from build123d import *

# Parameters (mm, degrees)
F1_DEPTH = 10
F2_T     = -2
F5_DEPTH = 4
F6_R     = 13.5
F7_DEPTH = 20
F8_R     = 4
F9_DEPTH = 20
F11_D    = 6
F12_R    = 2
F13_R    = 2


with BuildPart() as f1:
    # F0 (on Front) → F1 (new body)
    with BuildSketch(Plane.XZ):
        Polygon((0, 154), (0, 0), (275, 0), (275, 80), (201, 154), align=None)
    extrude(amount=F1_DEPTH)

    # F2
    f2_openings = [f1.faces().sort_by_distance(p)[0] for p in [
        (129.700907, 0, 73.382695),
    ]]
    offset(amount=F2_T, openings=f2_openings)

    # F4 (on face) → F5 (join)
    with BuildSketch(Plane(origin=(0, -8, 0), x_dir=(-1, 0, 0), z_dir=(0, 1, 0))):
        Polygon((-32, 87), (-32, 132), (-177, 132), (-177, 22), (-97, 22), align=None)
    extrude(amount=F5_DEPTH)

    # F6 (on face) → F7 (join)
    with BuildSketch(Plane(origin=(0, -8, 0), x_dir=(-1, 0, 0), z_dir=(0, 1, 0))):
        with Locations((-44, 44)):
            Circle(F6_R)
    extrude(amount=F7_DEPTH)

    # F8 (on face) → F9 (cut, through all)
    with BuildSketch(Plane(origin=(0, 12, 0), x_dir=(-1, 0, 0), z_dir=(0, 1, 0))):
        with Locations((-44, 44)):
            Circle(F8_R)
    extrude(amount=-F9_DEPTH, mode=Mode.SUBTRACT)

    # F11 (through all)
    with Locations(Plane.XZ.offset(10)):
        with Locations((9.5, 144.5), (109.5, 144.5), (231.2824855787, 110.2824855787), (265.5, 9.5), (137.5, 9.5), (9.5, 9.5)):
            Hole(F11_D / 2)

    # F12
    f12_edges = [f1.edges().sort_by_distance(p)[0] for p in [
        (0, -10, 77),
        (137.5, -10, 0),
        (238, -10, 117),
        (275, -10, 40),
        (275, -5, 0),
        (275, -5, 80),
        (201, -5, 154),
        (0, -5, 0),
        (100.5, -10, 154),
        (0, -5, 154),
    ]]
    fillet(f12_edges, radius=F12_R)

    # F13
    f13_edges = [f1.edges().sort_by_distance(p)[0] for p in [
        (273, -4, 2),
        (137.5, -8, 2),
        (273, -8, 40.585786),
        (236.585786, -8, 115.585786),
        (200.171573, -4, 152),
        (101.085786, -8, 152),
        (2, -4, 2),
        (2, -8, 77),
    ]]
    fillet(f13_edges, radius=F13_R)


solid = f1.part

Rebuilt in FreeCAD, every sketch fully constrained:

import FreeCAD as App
import Part
import Sketcher

V = App.Vector
Q = App.Units.Quantity


def edges_at(feature, points):
    """Names of the edges that pass closest to the given points."""
    edges = feature.Shape.Edges
    near = lambda p: min(range(len(edges)), key=lambda i: edges[i].distToShape(Part.Vertex(*p))[0])
    return sorted({f"Edge{near(p) + 1}" for p in points})


def faces_at(feature, points):
    """Names of the faces that lie closest to the given points."""
    faces = feature.Shape.Faces
    near = lambda p: min(range(len(faces)), key=lambda i: faces[i].distToShape(Part.Vertex(*p))[0])
    return sorted({f"Face{near(p) + 1}" for p in points})


def add_polygon(sketch, points):
    """Adds a closed chain of lines whose ends are joined by coincident constraints."""
    first, n = sketch.GeometryCount, len(points)
    for a, b in zip(points, points[1:] + points[:1]):
        sketch.addGeometry(Part.LineSegment(App.Vector(*a, 0), App.Vector(*b, 0)), False)
    for i in range(n):
        sketch.addConstraint(Sketcher.Constraint("Coincident", first + i, 2, first + (i + 1) % n, 1))

doc = App.newDocument("Part")
body = doc.addObject("PartDesign::Body", "Body")

# Sketch on XZ plane
sketch1 = doc.addObject("Sketcher::SketchObject", "Sketch")
body.addObject(sketch1)
sketch1.AttachmentSupport = (doc.XZ_Plane, [""])
sketch1.MapMode = "FlatFace"
add_polygon(sketch1, [(0, 154), (0, 0), (275, 0), (275, 80), (201, 154)])  # lines 0-4
sketch1.addConstraint(Sketcher.Constraint("Vertical", 0))
sketch1.addConstraint(Sketcher.Constraint("Horizontal", 1))
sketch1.addConstraint(Sketcher.Constraint("Vertical", 2))
sketch1.addConstraint(Sketcher.Constraint("Horizontal", 4))
sketch1.addConstraint(Sketcher.Constraint("Coincident", 0, 2, -1, 1))
sketch1.addConstraint(Sketcher.Constraint("DistanceX", 1, 1, 1, 2, Q("275 mm")))
sketch1.addConstraint(Sketcher.Constraint("DistanceX", 4, 2, 4, 1, Q("201 mm")))
sketch1.addConstraint(Sketcher.Constraint("DistanceY", 0, 2, 0, 1, Q("154 mm")))
sketch1.addConstraint(Sketcher.Constraint("DistanceY", 2, 1, 2, 2, Q("80 mm")))
pad1 = doc.addObject("PartDesign::Pad", "Pad")
body.addObject(pad1)
pad1.Profile = sketch1
pad1.Length = 10
doc.recompute()

thickness = doc.addObject("PartDesign::Thickness", "Thickness")
body.addObject(thickness)
thickness.Base = (pad1, faces_at(pad1, [(137.5, 0, 77)]))
thickness.Value = 2
thickness.Reversed = True
thickness.Join = "Arc"

# Sketch on XZ plane
sketch2 = doc.addObject("Sketcher::SketchObject", "Sketch001")
body.addObject(sketch2)
sketch2.AttachmentSupport = (doc.XZ_Plane, [""])
sketch2.MapMode = "FlatFace"
sketch2.AttachmentOffset = App.Placement(V(0, 0, 8), App.Rotation())
add_polygon(sketch2, [(32, 87), (32, 132), (177, 132), (177, 22), (97, 22)])  # lines 0-4
sketch2.addConstraint(Sketcher.Constraint("Vertical", 0))
sketch2.addConstraint(Sketcher.Constraint("Horizontal", 1))
sketch2.addConstraint(Sketcher.Constraint("Vertical", 2))
sketch2.addConstraint(Sketcher.Constraint("Horizontal", 3))
sketch2.addConstraint(Sketcher.Constraint("DistanceX", 1, 1, 1, 2, Q("145 mm")))
sketch2.addConstraint(Sketcher.Constraint("DistanceX", 3, 2, 3, 1, Q("80 mm")))
sketch2.addConstraint(Sketcher.Constraint("DistanceY", 0, 1, 0, 2, Q("45 mm")))
sketch2.addConstraint(Sketcher.Constraint("DistanceY", 2, 2, 2, 1, Q("110 mm")))
sketch2.addConstraint(Sketcher.Constraint("DistanceX", -1, 1, 0, 2, Q("32 mm")))
sketch2.addConstraint(Sketcher.Constraint("DistanceY", -1, 1, 0, 2, Q("132 mm")))
pad2 = doc.addObject("PartDesign::Pad", "Pad001")
body.addObject(pad2)
pad2.Profile = sketch2
pad2.Length = 4
pad2.Reversed = True

# Sketch on XZ plane
sketch3 = doc.addObject("Sketcher::SketchObject", "Sketch002")
body.addObject(sketch3)
sketch3.AttachmentSupport = (doc.XZ_Plane, [""])
sketch3.MapMode = "FlatFace"
sketch3.AttachmentOffset = App.Placement(V(0, 0, 8), App.Rotation())
sketch3.addGeometry(Part.Circle(V(44, 44, 0), V(0, 0, 1), 14), False)
sketch3.addConstraint(Sketcher.Constraint("Diameter", 0, Q("27 mm")))
sketch3.addConstraint(Sketcher.Constraint("DistanceX", -1, 1, 0, 3, Q("44 mm")))
sketch3.addConstraint(Sketcher.Constraint("DistanceY", -1, 1, 0, 3, Q("44 mm")))
pad3 = doc.addObject("PartDesign::Pad", "Pad002")
body.addObject(pad3)
pad3.Profile = sketch3
pad3.Length = 20
pad3.Reversed = True

# Sketch on XZ plane
sketch4 = doc.addObject("Sketcher::SketchObject", "Sketch003")
body.addObject(sketch4)
sketch4.AttachmentSupport = (doc.XZ_Plane, [""])
sketch4.MapMode = "FlatFace"
sketch4.AttachmentOffset = App.Placement(V(0, 0, -12), App.Rotation())
sketch4.addGeometry(Part.Circle(V(44, 44, 0), V(0, 0, 1), 4), False)
sketch4.addConstraint(Sketcher.Constraint("Diameter", 0, Q("8 mm")))
sketch4.addConstraint(Sketcher.Constraint("DistanceX", -1, 1, 0, 3, Q("44 mm")))
sketch4.addConstraint(Sketcher.Constraint("DistanceY", -1, 1, 0, 3, Q("44 mm")))
pocket1 = doc.addObject("PartDesign::Pocket", "Pocket")
body.addObject(pocket1)
pocket1.Profile = sketch4
pocket1.Length = 20
pocket1.Reversed = True

# Sketch on XZ plane
sketch5 = doc.addObject("Sketcher::SketchObject", "Sketch004")
body.addObject(sketch5)
sketch5.AttachmentSupport = (doc.XZ_Plane, [""])
sketch5.MapMode = "FlatFace"
sketch5.AttachmentOffset = App.Placement(V(0, 0, 10), App.Rotation())
sketch5.addGeometry(Part.Circle(V(9.5, 144.5, 0), V(0, 0, 1), 3), False)
sketch5.addGeometry(Part.Circle(V(109.5, 144.5, 0), V(0, 0, 1), 3), False)
sketch5.addGeometry(Part.Circle(V(231.3, 110.3, 0), V(0, 0, 1), 3), False)
sketch5.addGeometry(Part.Circle(V(265.5, 9.5, 0), V(0, 0, 1), 3), False)
sketch5.addGeometry(Part.Circle(V(137.5, 9.5, 0), V(0, 0, 1), 3), False)
sketch5.addGeometry(Part.Circle(V(9.5, 9.5, 0), V(0, 0, 1), 3), False)
sketch5.addConstraint(Sketcher.Constraint("Equal", 0, 1))
sketch5.addConstraint(Sketcher.Constraint("Equal", 1, 2))
sketch5.addConstraint(Sketcher.Constraint("Equal", 2, 3))
sketch5.addConstraint(Sketcher.Constraint("Equal", 3, 4))
sketch5.addConstraint(Sketcher.Constraint("Equal", 4, 5))
sketch5.addConstraint(Sketcher.Constraint("Horizontal", 0, 3, 1, 3))
sketch5.addConstraint(Sketcher.Constraint("Horizontal", 3, 3, 4, 3))
sketch5.addConstraint(Sketcher.Constraint("Horizontal", 4, 3, 5, 3))
sketch5.addConstraint(Sketcher.Constraint("Vertical", 0, 3, 5, 3))
sketch5.addConstraint(Sketcher.Constraint("Diameter", 0, Q("6 mm")))
sketch5.addConstraint(Sketcher.Constraint("DistanceX", 0, 3, 1, 3, Q("100 mm")))
sketch5.addConstraint(Sketcher.Constraint("DistanceX", 1, 3, 3, 3, Q("156 mm")))
sketch5.addConstraint(Sketcher.Constraint("DistanceY", 3, 3, 1, 3, Q("135 mm")))
sketch5.addConstraint(Sketcher.Constraint("DistanceX", 4, 3, 3, 3, Q("128 mm")))
sketch5.addConstraint(Sketcher.Constraint("DistanceX", -1, 1, 0, 3, Q("9.5 mm")))
sketch5.addConstraint(Sketcher.Constraint("DistanceY", -1, 1, 0, 3, Q("144.5 mm")))
sketch5.addConstraint(Sketcher.Constraint("DistanceX", -1, 1, 2, 3, Q("231.282486 mm")))
sketch5.addConstraint(Sketcher.Constraint("DistanceY", -1, 1, 2, 3, Q("110.282486 mm")))
doc.recompute()
hole = doc.addObject("PartDesign::Hole", "Hole")
body.addObject(hole)
hole.Profile = sketch5
hole.ThreadType = "None"
hole.Diameter = 6
hole.DepthType = "ThroughAll"
doc.recompute()

fillet = doc.addObject("PartDesign::Fillet", "Fillet")
body.addObject(fillet)
fillet.Base = (hole, edges_at(hole, [
    (0, -10, 77),
    (137.5, -10, 0),
    (238, -10, 117),
    (275, -10, 40),
    (275, -5, 0),
    (275, -5, 80),
    (201, -5, 154),
    (0, -5, 0),
    (100.5, -10, 154),
    (0, -5, 154),
]))
fillet.Radius = 2
doc.recompute()

fillet2 = doc.addObject("PartDesign::Fillet", "Fillet001")
body.addObject(fillet2)
fillet2.Base = (fillet, edges_at(fillet, [
    (273, -4, 2),
    (137.5, -8, 2),
    (273, -8, 40.586),
    (236.586, -8, 115.586),
    (200.172, -4, 152),
    (101.086, -8, 152),
    (2, -4, 2),
    (2, -8, 77),
]))
fillet2.Radius = 2

doc.recompute()
